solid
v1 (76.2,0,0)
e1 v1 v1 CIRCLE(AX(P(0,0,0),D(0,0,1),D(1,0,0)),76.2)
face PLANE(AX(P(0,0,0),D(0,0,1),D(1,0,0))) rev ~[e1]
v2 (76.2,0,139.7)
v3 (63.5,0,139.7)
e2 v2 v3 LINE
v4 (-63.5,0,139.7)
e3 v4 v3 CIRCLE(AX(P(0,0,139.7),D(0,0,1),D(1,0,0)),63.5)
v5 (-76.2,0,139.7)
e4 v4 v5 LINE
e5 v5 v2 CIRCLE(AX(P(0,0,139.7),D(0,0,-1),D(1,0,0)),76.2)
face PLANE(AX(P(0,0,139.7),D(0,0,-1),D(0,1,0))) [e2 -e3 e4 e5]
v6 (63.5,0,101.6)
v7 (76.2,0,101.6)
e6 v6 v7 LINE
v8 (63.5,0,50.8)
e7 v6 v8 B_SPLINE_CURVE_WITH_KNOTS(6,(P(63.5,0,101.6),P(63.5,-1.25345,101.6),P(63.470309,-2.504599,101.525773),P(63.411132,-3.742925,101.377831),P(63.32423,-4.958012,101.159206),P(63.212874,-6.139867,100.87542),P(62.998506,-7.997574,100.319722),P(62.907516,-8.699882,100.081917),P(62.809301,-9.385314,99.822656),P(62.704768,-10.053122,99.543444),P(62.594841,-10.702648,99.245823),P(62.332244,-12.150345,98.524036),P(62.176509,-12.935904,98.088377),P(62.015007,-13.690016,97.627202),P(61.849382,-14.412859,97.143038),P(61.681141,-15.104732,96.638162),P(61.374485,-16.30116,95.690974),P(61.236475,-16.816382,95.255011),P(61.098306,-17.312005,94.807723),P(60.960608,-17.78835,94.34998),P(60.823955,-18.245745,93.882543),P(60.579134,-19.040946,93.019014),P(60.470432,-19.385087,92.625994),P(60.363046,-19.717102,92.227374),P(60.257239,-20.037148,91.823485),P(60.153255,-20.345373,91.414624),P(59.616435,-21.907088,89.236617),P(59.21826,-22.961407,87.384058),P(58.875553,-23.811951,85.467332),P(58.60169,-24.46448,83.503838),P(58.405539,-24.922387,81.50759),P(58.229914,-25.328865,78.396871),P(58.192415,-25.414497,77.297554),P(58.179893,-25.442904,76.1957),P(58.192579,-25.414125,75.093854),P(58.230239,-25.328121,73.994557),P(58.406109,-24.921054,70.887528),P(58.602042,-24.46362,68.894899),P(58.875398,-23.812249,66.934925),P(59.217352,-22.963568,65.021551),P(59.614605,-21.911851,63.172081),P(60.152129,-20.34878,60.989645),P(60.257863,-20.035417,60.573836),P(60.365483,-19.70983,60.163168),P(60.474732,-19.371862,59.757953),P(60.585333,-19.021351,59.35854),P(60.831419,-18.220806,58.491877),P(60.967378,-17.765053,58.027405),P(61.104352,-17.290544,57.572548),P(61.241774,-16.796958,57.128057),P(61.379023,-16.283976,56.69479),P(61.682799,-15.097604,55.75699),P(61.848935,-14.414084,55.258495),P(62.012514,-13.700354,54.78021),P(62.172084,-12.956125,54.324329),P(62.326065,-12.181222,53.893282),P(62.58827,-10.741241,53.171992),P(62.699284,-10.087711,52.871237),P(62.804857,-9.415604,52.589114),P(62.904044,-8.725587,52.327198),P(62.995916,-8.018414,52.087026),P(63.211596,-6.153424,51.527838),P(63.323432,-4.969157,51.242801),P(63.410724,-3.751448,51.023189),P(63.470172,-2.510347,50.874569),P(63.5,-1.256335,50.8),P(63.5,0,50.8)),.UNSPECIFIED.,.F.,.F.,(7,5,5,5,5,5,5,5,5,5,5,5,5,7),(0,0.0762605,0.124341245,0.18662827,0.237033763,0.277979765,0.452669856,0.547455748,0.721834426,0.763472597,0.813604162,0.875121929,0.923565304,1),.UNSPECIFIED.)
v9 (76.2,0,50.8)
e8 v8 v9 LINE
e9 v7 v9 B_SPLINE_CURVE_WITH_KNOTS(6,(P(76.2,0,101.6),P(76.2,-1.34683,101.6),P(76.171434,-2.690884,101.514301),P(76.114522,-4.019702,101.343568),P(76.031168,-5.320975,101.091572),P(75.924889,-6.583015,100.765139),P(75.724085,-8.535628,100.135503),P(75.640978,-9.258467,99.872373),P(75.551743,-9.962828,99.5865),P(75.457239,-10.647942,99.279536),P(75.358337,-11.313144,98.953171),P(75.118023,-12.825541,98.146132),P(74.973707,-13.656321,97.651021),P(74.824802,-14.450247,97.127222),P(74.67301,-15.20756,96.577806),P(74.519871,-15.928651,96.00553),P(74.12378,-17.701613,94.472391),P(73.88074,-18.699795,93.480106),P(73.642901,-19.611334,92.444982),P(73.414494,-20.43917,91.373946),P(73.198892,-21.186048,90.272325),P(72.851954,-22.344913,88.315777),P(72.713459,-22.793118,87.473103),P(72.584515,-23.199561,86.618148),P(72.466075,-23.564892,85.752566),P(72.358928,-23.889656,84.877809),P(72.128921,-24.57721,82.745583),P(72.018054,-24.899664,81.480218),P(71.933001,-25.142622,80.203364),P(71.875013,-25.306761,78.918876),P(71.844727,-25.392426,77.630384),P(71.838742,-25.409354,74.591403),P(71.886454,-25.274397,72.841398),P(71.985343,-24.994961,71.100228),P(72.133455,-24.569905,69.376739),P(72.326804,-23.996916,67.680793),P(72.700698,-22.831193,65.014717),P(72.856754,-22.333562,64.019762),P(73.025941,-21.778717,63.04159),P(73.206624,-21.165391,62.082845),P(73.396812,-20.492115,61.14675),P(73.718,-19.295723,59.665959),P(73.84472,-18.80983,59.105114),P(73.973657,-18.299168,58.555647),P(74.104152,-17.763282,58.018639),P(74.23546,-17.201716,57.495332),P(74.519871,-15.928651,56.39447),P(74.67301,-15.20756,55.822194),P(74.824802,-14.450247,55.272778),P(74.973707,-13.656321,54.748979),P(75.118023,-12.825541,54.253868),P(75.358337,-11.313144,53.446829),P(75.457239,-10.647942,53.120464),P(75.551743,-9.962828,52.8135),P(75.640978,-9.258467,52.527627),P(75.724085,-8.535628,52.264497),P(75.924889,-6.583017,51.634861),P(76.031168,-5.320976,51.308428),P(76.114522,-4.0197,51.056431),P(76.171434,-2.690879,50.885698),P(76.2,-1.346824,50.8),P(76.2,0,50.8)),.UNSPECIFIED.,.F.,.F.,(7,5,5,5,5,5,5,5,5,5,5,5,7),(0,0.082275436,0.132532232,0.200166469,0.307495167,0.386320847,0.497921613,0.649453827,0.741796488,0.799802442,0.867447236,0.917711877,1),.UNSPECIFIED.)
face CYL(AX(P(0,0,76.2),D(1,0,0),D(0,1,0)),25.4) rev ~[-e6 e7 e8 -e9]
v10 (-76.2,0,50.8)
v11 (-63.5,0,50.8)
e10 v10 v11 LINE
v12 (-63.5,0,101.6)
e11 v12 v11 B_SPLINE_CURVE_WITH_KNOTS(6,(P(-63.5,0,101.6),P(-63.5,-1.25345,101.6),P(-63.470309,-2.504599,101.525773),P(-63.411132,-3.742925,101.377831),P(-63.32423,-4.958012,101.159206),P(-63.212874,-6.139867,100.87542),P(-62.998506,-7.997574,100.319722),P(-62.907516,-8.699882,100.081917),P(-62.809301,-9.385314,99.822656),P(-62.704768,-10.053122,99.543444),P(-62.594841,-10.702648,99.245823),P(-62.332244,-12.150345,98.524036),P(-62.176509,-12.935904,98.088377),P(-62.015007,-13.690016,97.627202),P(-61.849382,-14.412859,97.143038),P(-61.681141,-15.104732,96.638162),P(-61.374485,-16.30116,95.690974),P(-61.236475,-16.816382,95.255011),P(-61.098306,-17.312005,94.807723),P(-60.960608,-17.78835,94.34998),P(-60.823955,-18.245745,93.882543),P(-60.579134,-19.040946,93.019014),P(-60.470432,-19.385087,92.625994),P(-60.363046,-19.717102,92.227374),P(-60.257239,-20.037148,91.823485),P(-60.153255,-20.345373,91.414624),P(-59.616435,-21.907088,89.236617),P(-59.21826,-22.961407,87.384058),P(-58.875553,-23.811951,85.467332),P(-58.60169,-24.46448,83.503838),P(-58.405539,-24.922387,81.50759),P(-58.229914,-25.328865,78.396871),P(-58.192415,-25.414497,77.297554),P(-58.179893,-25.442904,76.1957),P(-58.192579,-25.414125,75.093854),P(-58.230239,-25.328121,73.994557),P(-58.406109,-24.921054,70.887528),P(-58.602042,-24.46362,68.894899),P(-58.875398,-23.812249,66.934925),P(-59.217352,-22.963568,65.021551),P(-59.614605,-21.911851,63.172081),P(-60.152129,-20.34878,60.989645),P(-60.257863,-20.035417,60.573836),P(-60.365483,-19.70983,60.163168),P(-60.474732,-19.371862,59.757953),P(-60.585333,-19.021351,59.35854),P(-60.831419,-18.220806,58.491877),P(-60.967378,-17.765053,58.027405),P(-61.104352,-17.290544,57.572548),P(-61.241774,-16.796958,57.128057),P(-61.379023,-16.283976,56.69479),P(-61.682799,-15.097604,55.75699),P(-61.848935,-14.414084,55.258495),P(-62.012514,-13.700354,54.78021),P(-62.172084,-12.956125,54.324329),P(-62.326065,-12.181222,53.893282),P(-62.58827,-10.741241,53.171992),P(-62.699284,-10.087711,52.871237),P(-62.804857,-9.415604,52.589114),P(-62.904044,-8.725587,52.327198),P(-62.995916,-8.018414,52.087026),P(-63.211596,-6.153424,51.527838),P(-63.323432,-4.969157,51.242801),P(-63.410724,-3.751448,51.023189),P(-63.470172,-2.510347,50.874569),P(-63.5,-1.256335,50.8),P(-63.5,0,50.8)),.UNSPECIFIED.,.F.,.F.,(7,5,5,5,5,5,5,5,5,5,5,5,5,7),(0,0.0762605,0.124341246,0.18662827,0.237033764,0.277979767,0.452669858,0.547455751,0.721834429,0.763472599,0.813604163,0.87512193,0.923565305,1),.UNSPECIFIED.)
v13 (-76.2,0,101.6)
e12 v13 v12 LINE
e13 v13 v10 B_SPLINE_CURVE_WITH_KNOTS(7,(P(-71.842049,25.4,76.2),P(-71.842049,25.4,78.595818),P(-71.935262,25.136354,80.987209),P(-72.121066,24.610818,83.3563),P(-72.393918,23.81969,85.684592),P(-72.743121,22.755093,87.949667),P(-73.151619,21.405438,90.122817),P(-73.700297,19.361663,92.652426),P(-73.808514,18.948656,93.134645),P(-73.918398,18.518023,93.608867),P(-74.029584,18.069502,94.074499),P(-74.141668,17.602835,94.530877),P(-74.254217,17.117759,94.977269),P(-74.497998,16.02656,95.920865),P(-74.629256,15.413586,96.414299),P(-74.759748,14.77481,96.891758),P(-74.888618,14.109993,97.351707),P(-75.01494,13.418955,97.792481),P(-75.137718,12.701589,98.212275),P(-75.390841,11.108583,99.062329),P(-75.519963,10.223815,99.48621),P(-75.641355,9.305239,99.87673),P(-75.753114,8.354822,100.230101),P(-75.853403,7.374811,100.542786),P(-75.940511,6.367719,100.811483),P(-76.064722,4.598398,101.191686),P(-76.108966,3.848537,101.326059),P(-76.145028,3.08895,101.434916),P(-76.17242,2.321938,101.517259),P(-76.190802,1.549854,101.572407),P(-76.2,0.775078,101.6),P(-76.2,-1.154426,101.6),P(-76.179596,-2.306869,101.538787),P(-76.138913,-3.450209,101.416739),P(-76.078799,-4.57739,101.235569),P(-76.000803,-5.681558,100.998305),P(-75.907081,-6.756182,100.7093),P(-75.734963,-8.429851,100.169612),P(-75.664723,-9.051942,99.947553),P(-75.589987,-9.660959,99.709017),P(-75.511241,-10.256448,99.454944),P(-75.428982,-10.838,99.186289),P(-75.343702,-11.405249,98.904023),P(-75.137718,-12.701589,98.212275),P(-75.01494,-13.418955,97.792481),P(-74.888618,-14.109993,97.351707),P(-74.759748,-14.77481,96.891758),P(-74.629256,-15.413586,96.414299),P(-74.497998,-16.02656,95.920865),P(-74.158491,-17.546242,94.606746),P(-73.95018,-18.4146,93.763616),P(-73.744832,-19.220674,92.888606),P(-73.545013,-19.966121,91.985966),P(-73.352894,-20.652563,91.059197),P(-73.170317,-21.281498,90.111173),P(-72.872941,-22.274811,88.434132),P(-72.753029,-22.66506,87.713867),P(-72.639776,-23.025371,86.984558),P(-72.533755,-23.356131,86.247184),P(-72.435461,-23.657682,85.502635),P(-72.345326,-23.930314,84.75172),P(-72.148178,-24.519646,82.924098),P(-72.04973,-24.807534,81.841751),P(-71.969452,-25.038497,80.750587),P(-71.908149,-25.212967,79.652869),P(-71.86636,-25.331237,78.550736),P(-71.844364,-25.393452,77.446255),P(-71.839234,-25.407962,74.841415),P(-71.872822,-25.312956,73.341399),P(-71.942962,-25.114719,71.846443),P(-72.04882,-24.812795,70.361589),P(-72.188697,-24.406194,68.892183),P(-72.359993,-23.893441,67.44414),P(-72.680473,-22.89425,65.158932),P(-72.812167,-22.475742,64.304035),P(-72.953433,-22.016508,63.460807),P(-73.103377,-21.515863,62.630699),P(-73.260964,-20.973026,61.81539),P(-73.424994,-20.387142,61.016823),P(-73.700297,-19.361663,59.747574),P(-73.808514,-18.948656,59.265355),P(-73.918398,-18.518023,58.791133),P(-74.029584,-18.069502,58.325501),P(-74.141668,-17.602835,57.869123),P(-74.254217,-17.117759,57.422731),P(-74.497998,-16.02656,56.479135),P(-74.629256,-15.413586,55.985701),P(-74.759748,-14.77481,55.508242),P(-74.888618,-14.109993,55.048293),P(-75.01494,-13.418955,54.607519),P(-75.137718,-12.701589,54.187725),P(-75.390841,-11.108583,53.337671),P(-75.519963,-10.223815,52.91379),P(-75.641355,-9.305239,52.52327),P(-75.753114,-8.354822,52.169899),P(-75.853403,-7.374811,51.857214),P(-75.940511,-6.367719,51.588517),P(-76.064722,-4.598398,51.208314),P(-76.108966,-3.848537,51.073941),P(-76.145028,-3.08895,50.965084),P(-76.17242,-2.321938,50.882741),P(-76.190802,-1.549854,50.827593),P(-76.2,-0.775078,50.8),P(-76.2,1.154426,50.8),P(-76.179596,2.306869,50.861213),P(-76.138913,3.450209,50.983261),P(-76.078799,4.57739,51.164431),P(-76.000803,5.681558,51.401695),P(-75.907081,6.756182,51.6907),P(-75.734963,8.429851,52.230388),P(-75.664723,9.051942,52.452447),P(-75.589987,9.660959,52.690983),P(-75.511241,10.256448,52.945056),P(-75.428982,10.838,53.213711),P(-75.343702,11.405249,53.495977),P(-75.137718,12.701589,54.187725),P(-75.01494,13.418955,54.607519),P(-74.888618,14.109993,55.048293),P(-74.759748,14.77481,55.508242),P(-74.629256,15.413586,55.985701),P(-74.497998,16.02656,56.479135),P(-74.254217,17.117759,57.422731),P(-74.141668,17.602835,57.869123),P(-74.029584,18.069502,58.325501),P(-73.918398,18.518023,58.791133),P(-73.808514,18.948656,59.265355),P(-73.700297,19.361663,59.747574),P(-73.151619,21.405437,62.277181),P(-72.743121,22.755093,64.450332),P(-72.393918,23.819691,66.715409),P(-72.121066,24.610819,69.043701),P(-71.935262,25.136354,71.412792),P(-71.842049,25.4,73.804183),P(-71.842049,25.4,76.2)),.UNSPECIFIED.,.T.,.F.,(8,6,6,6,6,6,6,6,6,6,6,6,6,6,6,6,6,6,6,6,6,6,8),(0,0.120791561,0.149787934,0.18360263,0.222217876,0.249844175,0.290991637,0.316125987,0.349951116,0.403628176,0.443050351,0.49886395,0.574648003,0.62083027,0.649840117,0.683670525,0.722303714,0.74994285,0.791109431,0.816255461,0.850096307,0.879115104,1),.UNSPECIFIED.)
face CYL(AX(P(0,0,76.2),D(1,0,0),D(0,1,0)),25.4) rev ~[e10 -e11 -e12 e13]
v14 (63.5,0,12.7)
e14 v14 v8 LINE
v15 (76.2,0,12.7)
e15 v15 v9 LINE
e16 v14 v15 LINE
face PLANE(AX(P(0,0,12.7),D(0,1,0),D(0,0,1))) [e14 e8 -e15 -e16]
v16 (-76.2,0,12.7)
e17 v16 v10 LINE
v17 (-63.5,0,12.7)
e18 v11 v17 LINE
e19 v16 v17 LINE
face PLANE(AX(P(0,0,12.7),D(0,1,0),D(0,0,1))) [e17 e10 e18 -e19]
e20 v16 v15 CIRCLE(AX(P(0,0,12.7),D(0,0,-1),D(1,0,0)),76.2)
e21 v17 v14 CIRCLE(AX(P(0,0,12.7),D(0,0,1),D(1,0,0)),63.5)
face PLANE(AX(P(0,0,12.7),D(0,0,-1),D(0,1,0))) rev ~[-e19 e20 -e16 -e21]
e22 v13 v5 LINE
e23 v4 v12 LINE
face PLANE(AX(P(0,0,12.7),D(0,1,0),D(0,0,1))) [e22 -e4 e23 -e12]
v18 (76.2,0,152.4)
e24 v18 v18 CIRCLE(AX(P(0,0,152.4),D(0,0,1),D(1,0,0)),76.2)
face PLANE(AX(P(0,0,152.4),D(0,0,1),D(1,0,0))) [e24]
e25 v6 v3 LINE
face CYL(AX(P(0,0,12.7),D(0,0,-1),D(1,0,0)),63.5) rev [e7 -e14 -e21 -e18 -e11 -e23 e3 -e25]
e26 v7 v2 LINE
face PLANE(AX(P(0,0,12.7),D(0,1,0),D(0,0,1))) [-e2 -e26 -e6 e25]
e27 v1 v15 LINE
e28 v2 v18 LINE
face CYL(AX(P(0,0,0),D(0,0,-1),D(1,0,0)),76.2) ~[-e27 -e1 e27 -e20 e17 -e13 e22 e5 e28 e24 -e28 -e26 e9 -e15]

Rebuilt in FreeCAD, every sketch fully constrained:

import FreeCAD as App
import Part
import Sketcher
Q = App.Units.Quantity


def add_polygon(sketch, points):
    """Adds a closed chain of lines whose ends are joined by coincident constraints."""
    first, n = sketch.GeometryCount, len(points)
    for a, b in zip(points, points[1:] + points[:1]):
        sketch.addGeometry(Part.LineSegment(App.Vector(*a, 0), App.Vector(*b, 0)), False)
    for i in range(n):
        sketch.addConstraint(Sketcher.Constraint("Coincident", first + i, 2, first + (i + 1) % n, 1))

doc = App.newDocument("Part")
body = doc.addObject("PartDesign::Body", "Body")

sketch1 = body.newObject("Sketcher::SketchObject", "Sketch")
sketch1.AttachmentSupport = (doc.getObject("XY_Plane"), [""])
sketch1.MapMode = "FlatFace"
sketch1.addGeometry(Part.Circle(App.Vector(0, 0, 0), App.Vector(0, 0, 1), 76), False)
sketch1.addConstraint(Sketcher.Constraint("Coincident", 0, 3, -1, 1))
sketch1.addConstraint(Sketcher.Constraint("Diameter", 0, Q("6 in")))
pad1 = body.newObject("PartDesign::Pad", "Pad")
pad1.Profile = sketch1
pad1.Length = Q("6 in")

sketch2 = body.newObject("Sketcher::SketchObject", "Sketch001")
sketch2.AttachmentSupport = (doc.getObject("YZ_Plane"), [""])
sketch2.MapMode = "FlatFace"
add_polygon(sketch2, [(0, 140), (0, 13), (77, 13), (77, 140)])
sketch2.addConstraint(Sketcher.Constraint("Vertical", 0))
sketch2.addConstraint(Sketcher.Constraint("Horizontal", 1))
sketch2.addConstraint(Sketcher.Constraint("Vertical", 2))
sketch2.addConstraint(Sketcher.Constraint("Horizontal", 3))
sketch2.addConstraint(Sketcher.Constraint("PointOnObject", 0, 2, -2))
sketch2.addConstraint(Sketcher.Constraint("DistanceY", 0, 2, 0, 1, Q("5 in")))
sketch2.addConstraint(Sketcher.Constraint("DistanceY", -1, 1, 0, 2, Q("0.5 in")))
sketch2.addConstraint(Sketcher.Constraint("DistanceX", 1, 1, 1, 2, Q("3.0224999 in")))
pocket1 = body.newObject("PartDesign::Pocket", "Pocket")
pocket1.Profile = sketch2
pocket1.Length = Q("6 in")
pocket1.Midplane = True

sketch3 = body.newObject("Sketcher::SketchObject", "Sketch002")
sketch3.AttachmentSupport = (doc.getObject("XY_Plane"), [""])
sketch3.MapMode = "FlatFace"
sketch3.AttachmentOffset = App.Placement(App.Vector(0, 0, 0.5 * 25.4), App.Rotation())
sketch3.addGeometry(Part.Circle(App.Vector(0, 0, 0), App.Vector(0, 0, 1), 64), False)
sketch3.addConstraint(Sketcher.Constraint("Coincident", 0, 3, -1, 1))
sketch3.addConstraint(Sketcher.Constraint("Diameter", 0, Q("5 in")))
pocket2 = body.newObject("PartDesign::Pocket", "Pocket001")
pocket2.Profile = sketch3
pocket2.Length = Q("5 in")
pocket2.Reversed = True

sketch4 = body.newObject("Sketcher::SketchObject", "Sketch003")
sketch4.AttachmentSupport = (doc.getObject("YZ_Plane"), [""])
sketch4.MapMode = "FlatFace"
sketch4.addGeometry(Part.Circle(App.Vector(0, 76, 0), App.Vector(0, 0, 1), 25), False)
sketch4.addConstraint(Sketcher.Constraint("PointOnObject", 0, 3, -2))
sketch4.addConstraint(Sketcher.Constraint("Diameter", 0, Q("2 in")))
sketch4.addConstraint(Sketcher.Constraint("DistanceY", -1, 1, 0, 3, Q("3 in")))
pocket3 = body.newObject("PartDesign::Pocket", "Pocket002")
pocket3.Profile = sketch4
pocket3.Length = Q("6 in")
pocket3.Midplane = True

doc.recompute()
